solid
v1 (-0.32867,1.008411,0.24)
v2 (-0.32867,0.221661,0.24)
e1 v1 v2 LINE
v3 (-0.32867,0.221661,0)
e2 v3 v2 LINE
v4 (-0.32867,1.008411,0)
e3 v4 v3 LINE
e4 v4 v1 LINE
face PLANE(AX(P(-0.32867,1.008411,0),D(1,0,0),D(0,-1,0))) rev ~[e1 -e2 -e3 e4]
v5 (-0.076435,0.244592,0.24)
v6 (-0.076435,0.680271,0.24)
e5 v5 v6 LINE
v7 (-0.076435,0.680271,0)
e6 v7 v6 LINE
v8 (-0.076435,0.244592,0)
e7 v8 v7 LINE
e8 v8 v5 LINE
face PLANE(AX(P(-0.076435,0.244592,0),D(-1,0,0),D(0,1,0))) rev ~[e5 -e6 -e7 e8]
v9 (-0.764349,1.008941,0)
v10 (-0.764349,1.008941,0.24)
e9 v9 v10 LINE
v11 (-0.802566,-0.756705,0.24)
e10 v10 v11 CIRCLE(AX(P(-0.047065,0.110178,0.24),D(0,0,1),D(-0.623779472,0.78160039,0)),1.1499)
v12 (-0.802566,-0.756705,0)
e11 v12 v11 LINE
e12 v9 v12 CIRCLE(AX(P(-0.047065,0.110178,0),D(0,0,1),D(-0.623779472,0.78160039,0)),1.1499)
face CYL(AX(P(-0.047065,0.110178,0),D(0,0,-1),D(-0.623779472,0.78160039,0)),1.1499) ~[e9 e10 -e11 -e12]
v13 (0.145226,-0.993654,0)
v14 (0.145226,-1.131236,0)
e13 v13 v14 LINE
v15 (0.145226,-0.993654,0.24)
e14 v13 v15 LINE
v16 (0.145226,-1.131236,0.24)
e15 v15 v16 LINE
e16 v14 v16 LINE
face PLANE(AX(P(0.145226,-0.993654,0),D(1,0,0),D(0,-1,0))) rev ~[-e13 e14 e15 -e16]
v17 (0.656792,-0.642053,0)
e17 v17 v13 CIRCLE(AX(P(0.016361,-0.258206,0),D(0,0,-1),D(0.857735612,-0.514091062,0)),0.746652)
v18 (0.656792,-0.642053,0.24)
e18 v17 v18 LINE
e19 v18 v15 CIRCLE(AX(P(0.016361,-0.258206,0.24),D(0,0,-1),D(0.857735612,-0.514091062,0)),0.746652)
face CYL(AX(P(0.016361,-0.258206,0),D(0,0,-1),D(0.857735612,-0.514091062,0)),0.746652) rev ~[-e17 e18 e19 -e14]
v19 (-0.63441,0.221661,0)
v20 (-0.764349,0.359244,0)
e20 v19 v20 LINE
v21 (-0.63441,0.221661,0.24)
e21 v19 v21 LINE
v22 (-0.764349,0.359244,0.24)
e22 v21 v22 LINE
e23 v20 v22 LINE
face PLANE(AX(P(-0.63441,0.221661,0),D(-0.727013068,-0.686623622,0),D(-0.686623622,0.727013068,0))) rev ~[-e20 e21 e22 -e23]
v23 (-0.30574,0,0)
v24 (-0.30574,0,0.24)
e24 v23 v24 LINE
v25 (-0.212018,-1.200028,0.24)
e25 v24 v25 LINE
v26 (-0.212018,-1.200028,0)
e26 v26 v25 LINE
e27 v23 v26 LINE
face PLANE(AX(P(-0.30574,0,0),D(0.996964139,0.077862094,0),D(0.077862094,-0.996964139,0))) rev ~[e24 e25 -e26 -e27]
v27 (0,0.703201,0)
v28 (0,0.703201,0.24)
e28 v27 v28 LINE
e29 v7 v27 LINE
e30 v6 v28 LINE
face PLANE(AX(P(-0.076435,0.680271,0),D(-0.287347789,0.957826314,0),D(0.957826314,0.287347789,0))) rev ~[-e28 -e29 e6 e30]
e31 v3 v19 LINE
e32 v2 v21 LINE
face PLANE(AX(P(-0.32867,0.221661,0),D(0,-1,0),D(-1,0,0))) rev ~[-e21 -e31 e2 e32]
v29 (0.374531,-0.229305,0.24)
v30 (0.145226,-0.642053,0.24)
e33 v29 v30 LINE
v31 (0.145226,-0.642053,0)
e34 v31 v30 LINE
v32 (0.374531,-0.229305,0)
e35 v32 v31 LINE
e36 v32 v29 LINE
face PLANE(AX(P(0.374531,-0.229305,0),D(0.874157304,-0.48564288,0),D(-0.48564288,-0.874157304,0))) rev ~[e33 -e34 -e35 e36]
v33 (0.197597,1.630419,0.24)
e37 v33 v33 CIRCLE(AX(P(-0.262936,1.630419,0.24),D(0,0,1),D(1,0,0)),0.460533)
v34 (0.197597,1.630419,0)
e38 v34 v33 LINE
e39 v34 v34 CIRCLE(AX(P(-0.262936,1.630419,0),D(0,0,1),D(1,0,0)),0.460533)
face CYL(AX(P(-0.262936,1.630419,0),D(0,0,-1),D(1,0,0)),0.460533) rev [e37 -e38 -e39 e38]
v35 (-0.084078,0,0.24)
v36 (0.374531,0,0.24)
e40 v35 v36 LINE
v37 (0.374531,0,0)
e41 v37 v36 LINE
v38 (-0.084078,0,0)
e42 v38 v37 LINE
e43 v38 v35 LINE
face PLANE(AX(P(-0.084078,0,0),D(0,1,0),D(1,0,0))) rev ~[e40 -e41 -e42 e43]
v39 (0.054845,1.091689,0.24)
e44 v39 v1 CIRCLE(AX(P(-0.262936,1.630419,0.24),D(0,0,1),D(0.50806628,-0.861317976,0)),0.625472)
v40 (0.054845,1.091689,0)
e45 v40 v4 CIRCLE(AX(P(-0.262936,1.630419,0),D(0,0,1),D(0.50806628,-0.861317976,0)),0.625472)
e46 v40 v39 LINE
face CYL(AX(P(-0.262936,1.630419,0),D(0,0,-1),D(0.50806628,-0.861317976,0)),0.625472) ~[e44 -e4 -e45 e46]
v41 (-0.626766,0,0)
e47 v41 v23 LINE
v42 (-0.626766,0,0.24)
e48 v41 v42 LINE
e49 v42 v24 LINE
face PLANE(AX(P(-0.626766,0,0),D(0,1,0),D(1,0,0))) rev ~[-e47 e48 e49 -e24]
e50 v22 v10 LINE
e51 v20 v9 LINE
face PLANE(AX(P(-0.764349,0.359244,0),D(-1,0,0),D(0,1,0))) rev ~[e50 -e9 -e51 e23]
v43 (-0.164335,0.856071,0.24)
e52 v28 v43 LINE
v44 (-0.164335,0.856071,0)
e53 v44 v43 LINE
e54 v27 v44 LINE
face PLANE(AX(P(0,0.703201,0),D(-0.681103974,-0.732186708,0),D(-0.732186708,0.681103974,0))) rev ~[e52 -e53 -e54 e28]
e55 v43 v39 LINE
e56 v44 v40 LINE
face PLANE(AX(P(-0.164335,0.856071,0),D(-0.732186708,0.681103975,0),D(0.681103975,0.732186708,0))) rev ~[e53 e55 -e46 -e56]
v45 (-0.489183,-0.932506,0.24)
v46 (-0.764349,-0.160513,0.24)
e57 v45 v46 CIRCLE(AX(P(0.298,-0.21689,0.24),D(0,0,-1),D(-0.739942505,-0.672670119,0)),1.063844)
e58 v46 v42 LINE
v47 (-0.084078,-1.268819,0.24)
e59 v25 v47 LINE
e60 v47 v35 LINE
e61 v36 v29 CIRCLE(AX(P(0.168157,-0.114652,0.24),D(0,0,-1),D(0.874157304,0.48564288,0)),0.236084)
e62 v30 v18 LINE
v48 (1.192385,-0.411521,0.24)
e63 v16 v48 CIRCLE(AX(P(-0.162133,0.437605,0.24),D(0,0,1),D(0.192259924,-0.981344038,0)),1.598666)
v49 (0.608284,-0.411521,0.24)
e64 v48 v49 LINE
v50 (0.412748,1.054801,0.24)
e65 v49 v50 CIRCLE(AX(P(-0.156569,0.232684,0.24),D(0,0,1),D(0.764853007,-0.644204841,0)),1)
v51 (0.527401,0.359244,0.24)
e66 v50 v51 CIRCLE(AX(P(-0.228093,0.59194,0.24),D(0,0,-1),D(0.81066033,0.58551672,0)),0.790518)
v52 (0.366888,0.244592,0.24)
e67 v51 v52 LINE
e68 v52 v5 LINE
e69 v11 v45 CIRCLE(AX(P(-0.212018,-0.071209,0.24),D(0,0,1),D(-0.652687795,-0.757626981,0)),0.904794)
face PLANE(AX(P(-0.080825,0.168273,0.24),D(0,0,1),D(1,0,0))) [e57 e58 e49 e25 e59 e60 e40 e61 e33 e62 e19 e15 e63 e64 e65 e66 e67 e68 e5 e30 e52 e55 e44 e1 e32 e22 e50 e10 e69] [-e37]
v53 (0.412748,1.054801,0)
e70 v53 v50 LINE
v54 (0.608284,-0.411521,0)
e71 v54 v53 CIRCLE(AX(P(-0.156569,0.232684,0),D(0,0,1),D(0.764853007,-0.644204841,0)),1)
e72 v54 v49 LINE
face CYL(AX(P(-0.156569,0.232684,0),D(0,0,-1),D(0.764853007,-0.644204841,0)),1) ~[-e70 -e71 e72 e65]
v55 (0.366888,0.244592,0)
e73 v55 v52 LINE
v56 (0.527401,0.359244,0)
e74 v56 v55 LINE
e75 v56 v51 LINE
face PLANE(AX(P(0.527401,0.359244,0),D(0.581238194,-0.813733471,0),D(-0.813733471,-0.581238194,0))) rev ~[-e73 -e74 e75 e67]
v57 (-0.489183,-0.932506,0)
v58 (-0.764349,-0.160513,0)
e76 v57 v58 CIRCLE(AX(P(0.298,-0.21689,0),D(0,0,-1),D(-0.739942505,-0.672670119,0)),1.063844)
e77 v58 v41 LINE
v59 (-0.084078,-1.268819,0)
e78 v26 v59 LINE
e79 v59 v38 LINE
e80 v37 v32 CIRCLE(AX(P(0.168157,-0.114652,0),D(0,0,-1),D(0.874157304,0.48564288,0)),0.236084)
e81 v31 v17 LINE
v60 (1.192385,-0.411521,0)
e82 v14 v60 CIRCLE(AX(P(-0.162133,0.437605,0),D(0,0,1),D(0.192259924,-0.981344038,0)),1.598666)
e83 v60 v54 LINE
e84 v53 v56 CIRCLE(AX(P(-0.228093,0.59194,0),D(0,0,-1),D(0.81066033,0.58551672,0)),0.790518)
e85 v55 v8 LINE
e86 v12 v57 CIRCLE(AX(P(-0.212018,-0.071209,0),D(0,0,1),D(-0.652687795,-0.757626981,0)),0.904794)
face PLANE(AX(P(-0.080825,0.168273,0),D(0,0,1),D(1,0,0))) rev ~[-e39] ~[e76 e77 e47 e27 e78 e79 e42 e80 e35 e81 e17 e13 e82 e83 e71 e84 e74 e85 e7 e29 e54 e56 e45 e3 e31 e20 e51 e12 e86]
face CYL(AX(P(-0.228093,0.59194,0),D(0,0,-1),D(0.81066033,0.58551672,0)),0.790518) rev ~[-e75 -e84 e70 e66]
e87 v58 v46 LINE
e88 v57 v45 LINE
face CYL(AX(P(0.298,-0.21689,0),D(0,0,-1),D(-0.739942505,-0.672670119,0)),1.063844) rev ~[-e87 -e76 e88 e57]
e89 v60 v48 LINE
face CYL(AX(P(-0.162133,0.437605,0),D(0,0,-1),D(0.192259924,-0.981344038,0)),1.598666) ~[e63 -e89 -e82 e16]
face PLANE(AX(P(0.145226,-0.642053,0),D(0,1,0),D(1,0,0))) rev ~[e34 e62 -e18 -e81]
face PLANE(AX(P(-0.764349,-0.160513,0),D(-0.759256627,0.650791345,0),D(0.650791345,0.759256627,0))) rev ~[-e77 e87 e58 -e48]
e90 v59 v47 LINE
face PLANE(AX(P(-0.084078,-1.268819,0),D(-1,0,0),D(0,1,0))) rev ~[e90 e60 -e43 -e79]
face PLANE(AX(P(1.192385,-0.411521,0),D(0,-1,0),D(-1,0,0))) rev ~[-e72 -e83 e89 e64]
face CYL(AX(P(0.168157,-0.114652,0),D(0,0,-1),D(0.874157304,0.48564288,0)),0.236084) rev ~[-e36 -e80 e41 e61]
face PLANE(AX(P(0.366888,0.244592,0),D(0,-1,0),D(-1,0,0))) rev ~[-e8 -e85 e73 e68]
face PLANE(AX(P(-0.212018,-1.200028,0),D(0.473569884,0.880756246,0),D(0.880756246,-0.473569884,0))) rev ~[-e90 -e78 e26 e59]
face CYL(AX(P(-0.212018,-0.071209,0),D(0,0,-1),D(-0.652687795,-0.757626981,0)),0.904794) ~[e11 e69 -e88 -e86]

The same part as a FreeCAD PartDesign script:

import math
import FreeCAD as App
import Part
import Sketcher
Q = App.Units.Quantity

doc = App.newDocument("Part")
body = doc.addObject("PartDesign::Body", "Body")

# Sketch on XY plane
sketch1 = body.newObject("Sketcher::SketchObject", "Sketch")
sketch1.AttachmentSupport = (doc.getObject("XY_Plane"), [""])
sketch1.MapMode = "FlatFace"
sketch1.addGeometry([
    Part.LineSegment(App.Vector(-0.33, 1.01, 0), App.Vector(-0.33, 0.22, 0)),  # 0
    Part.LineSegment(App.Vector(-0.33, 0.22, 0), App.Vector(-0.63, 0.22, 0)),  # 1
    Part.LineSegment(App.Vector(-0.63, 0.22, 0), App.Vector(-0.76, 0.36, 0)),  # 2
    Part.LineSegment(App.Vector(-0.76, 0.36, 0), App.Vector(-0.76, 1.01, 0)),  # 3
    Part.ArcOfCircle(Part.Circle(App.Vector(-0.05, 0.11, 0), App.Vector(0, 0, 1), 1.15), math.radians(129), math.radians(229)),  # 4
    Part.ArcOfCircle(Part.Circle(App.Vector(-0.21, -0.07, 0), App.Vector(0, 0, 1), 0.9), math.radians(-131), math.radians(-108)),  # 5
    Part.ArcOfCircle(Part.Circle(App.Vector(0.3, -0.22, 0), App.Vector(0, 0, 1), 1.06), math.radians(177), math.radians(222)),  # 6
    Part.LineSegment(App.Vector(-0.76, -0.16, 0), App.Vector(-0.63, 0, 0)),  # 7
    Part.LineSegment(App.Vector(-0.63, 0, 0), App.Vector(-0.31, 0, 0)),  # 8
    Part.LineSegment(App.Vector(-0.31, 0, 0), App.Vector(-0.21, -1.2, 0)),  # 9
    Part.LineSegment(App.Vector(-0.21, -1.2, 0), App.Vector(-0.08, -1.27, 0)),  # 10
    Part.LineSegment(App.Vector(-0.08, -1.27, 0), App.Vector(-0.08, 0, 0)),  # 11
    Part.LineSegment(App.Vector(-0.08, 0, 0), App.Vector(0.37, 0, 0)),  # 12
    Part.ArcOfCircle(Part.Circle(App.Vector(0.17, -0.11, 0), App.Vector(0, 0, 1), 0.24), math.radians(-29), math.radians(29)),  # 13
    Part.LineSegment(App.Vector(0.37, -0.23, 0), App.Vector(0.15, -0.64, 0)),  # 14
    Part.LineSegment(App.Vector(0.15, -0.64, 0), App.Vector(0.66, -0.64, 0)),  # 15
    Part.ArcOfCircle(Part.Circle(App.Vector(0.02, -0.26, 0), App.Vector(0, 0, 1), 0.75), math.radians(-80), math.radians(-31)),  # 16
    Part.LineSegment(App.Vector(0.15, -0.99, 0), App.Vector(0.15, -1.13, 0)),  # 17
    Part.ArcOfCircle(Part.Circle(App.Vector(-0.16, 0.44, 0), App.Vector(0, 0, 1), 1.6), math.radians(-79), math.radians(-32)),  # 18
    Part.LineSegment(App.Vector(1.19, -0.41, 0), App.Vector(0.61, -0.41, 0)),  # 19
    Part.ArcOfCircle(Part.Circle(App.Vector(-0.16, 0.23, 0), App.Vector(0, 0, 1), 1), math.radians(-40), math.radians(55)),  # 20
    Part.ArcOfCircle(Part.Circle(App.Vector(-0.23, 0.59, 0), App.Vector(0, 0, 1), 0.79), math.radians(-17), math.radians(36)),  # 21
    Part.LineSegment(App.Vector(0.53, 0.36, 0), App.Vector(0.37, 0.24, 0)),  # 22
    Part.LineSegment(App.Vector(0.37, 0.24, 0), App.Vector(-0.08, 0.24, 0)),  # 23
    Part.LineSegment(App.Vector(-0.08, 0.24, 0), App.Vector(-0.08, 0.68, 0)),  # 24
    Part.LineSegment(App.Vector(-0.08, 0.68, 0), App.Vector(0, 0.7, 0)),  # 25
    Part.LineSegment(App.Vector(0, 0.7, 0), App.Vector(-0.16, 0.86, 0)),  # 26
    Part.LineSegment(App.Vector(-0.16, 0.86, 0), App.Vector(0.05, 1.09, 0)),  # 27
    Part.ArcOfCircle(Part.Circle(App.Vector(-0.26, 1.63, 0), App.Vector(0, 0, 1), 0.63), math.radians(-59), math.radians(264)),  # 28
    Part.Circle(App.Vector(-0.26, 1.63, 0), App.Vector(0, 0, 1), 0.46),  # 29
], False)
sketch1.addConstraint([
    Sketcher.Constraint("Coincident", 0, 2, 1, 1),
    Sketcher.Constraint("Coincident", 1, 2, 2, 1),
    Sketcher.Constraint("Coincident", 2, 2, 3, 1),
    Sketcher.Constraint("Coincident", 3, 2, 4, 1),
    Sketcher.Constraint("Coincident", 4, 2, 5, 1),
    Sketcher.Constraint("Coincident", 5, 2, 6, 2),
    Sketcher.Constraint("Coincident", 6, 1, 7, 1),
    Sketcher.Constraint("Coincident", 7, 2, 8, 1),
    Sketcher.Constraint("Coincident", 8, 2, 9, 1),
    Sketcher.Constraint("Coincident", 9, 2, 10, 1),
    Sketcher.Constraint("Coincident", 10, 2, 11, 1),
    Sketcher.Constraint("Coincident", 11, 2, 12, 1),
    Sketcher.Constraint("Coincident", 12, 2, 13, 2),
    Sketcher.Constraint("Tangent", 13, 1, 14, 1),
    Sketcher.Constraint("Coincident", 14, 2, 15, 1),
    Sketcher.Constraint("Coincident", 15, 2, 16, 2),
    Sketcher.Constraint("Coincident", 16, 1, 17, 1),
    Sketcher.Constraint("Coincident", 17, 2, 18, 1),
    Sketcher.Constraint("Coincident", 18, 2, 19, 1),
    Sketcher.Constraint("Coincident", 19, 2, 20, 1),
    Sketcher.Constraint("Coincident", 20, 2, 21, 2),
    Sketcher.Constraint("Coincident", 21, 1, 22, 1),
    Sketcher.Constraint("Coincident", 22, 2, 23, 1),
    Sketcher.Constraint("Coincident", 23, 2, 24, 1),
    Sketcher.Constraint("Coincident", 24, 2, 25, 1),
    Sketcher.Constraint("Coincident", 25, 2, 26, 1),
    Sketcher.Constraint("Coincident", 26, 2, 27, 1),
    Sketcher.Constraint("Coincident", 27, 2, 28, 1),
    Sketcher.Constraint("Coincident", 28, 2, 0, 1),
    Sketcher.Constraint("Vertical", 0),
    Sketcher.Constraint("Horizontal", 1),
    Sketcher.Constraint("Vertical", 3),
    Sketcher.Constraint("Horizontal", 8),
    Sketcher.Constraint("Vertical", 11),
    Sketcher.Constraint("Horizontal", 12),
    Sketcher.Constraint("Horizontal", 15),
    Sketcher.Constraint("Vertical", 17),
    Sketcher.Constraint("Horizontal", 19),
    Sketcher.Constraint("Horizontal", 23),
    Sketcher.Constraint("Vertical", 24),
    Sketcher.Constraint("Coincident", 29, 3, 28, 3),
    Sketcher.Constraint("PointOnObject", 7, 2, -1),
    Sketcher.Constraint("PointOnObject", 11, 2, -1),
    Sketcher.Constraint("PointOnObject", 25, 2, -2),
    Sketcher.Constraint("Perpendicular", 26, 27),
    Sketcher.Constraint("Horizontal", 2, 2, 21, 1),
    Sketcher.Constraint("Vertical", 3, 2, 6, 1),
    Sketcher.Constraint("Vertical", 5, 3, 9, 2),
    Sketcher.Constraint("Vertical", 12, 2, 13, 1),
    Sketcher.Constraint("Vertical", 14, 2, 16, 1),
    Sketcher.Constraint("Radius", 20, Q("1 mm")),
    Sketcher.Constraint("Radius", 4, Q("1.1499 mm")),
    Sketcher.Constraint("Radius", 28, Q("0.625472 mm")),
    Sketcher.Constraint("Diameter", 29, Q("0.921067 mm")),
    Sketcher.Constraint("DistanceX", 19, 2, 19, 1, Q("0.5841 mm")),
    Sketcher.Constraint("DistanceX", -1, 1, 6, 3, Q("0.298 mm")),
    Sketcher.Constraint("Radius", 5, Q("0.904794 mm")),
    Sketcher.Constraint("Radius", 6, Q("1.063844 mm")),
    Sketcher.Constraint("Radius", 13, Q("0.236084 mm")),
    Sketcher.Constraint("Radius", 16, Q("0.746652 mm")),
    Sketcher.Constraint("Radius", 18, Q("1.598666 mm")),
    Sketcher.Constraint("Radius", 21, Q("0.790518 mm")),
    Sketcher.Constraint("DistanceY", 21, 3, 3, 2, Q("0.417 mm")),
    Sketcher.Constraint("Distance", 25, Q("0.0798 mm")),
    Sketcher.Constraint("Distance", 27, Q("0.321801 mm")),
    Sketcher.Constraint("DistanceX", 1, 2, 1, 1, Q("0.30574 mm")),
    Sketcher.Constraint("DistanceX", 12, 1, 12, 2, Q("0.458609 mm")),
    Sketcher.Constraint("DistanceY", 0, 2, 0, 1, Q("0.78675 mm")),
    Sketcher.Constraint("DistanceY", 11, 1, 11, 2, Q("1.268819 mm")),
    Sketcher.Constraint("DistanceY", 24, 1, 24, 2, Q("0.435679 mm")),
    Sketcher.Constraint("DistanceY", -1, 1, 20, 2, Q("1.054801 mm")),
    Sketcher.Constraint("DistanceX", -1, 1, 21, 1, Q("0.527401 mm")),
    Sketcher.Constraint("DistanceY", -1, 1, 25, 2, Q("0.703201 mm")),
    Sketcher.Constraint("DistanceX", 0, 2, 20, 3, Q("0.172101 mm")),
    Sketcher.Constraint("DistanceY", 4, 2, 16, 3, Q("0.4985 mm")),
    Sketcher.Constraint("DistanceY", 5, 2, 4, 2, Q("0.1758 mm")),
    Sketcher.Constraint("DistanceY", 16, 3, 13, 1, Q("0.028901 mm")),
    Sketcher.Constraint("DistanceY", 14, 2, 13, 3, Q("0.527401 mm")),
    Sketcher.Constraint("DistanceY", 16, 1, 14, 2, Q("0.3516 mm")),
    Sketcher.Constraint("DistanceX", 18, 3, 23, 2, Q("0.085698 mm")),
    Sketcher.Constraint("DistanceX", 26, 2, 24, 2, Q("0.0879 mm")),
    Sketcher.Constraint("DistanceY", 24, 2, 26, 2, Q("0.1758 mm")),
    Sketcher.Constraint("Distance", 7, Q("0.211408 mm")),
    Sketcher.Constraint("Distance", 10, Q("0.145262 mm")),
    Sketcher.Constraint("DistanceX", 8, 1, 8, 2, Q("0.321027 mm")),
    Sketcher.Constraint("DistanceX", 15, 1, 15, 2, Q("0.511565 mm")),
    Sketcher.Constraint("DistanceX", 23, 2, 23, 1, Q("0.443322 mm")),
    Sketcher.Constraint("DistanceY", 3, 1, 3, 2, Q("0.649697 mm")),
    Sketcher.Constraint("DistanceY", 17, 2, 17, 1, Q("0.137583 mm")),
    Sketcher.Constraint("DistanceY", -1, 1, 4, 3, Q("0.110178 mm")),
    Sketcher.Constraint("DistanceX", 5, 3, -1, 1, Q("0.212018 mm")),
    Sketcher.Constraint("DistanceY", 5, 3, -1, 1, Q("0.071209 mm")),
    Sketcher.Constraint("DistanceX", -1, 1, 16, 3, Q("0.016361 mm")),
    Sketcher.Constraint("DistanceX", 20, 3, -1, 1, Q("0.156569 mm")),
    Sketcher.Constraint("DistanceY", -1, 1, 21, 3, Q("0.59194 mm")),
    Sketcher.Constraint("DistanceY", -1, 1, 28, 3, Q("1.630419 mm")),
    Sketcher.Constraint("DistanceY", -1, 1, 0, 2, Q("0.221661 mm")),
])
pad1 = body.newObject("PartDesign::Pad", "Pad")
pad1.Profile = sketch1
pad1.Length = 0.24

doc.recompute()
